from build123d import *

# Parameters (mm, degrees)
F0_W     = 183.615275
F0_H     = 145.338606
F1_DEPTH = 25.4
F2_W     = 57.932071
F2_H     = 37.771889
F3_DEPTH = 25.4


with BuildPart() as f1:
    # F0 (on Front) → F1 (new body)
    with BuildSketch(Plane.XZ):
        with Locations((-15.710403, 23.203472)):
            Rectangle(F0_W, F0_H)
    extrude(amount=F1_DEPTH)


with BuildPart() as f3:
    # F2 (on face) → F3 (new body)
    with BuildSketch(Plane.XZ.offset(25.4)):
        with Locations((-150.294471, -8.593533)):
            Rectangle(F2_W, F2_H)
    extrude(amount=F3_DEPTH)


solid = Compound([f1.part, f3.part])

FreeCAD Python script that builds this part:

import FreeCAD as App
import Part
import Sketcher

V = App.Vector


def add_polygon(sketch, points):
    """Adds a closed chain of lines whose ends are joined by coincident constraints."""
    first, n = sketch.GeometryCount, len(points)
    for a, b in zip(points, points[1:] + points[:1]):
        sketch.addGeometry(Part.LineSegment(App.Vector(*a, 0), App.Vector(*b, 0)), False)
    for i in range(n):
        sketch.addConstraint(Sketcher.Constraint("Coincident", first + i, 2, first + (i + 1) % n, 1))

doc = App.newDocument("Part")
params = doc.addObject("Spreadsheet::Sheet", "Params")
for row, (alias, value) in enumerate([
    ("pad1_length", "1 in"),
    ("pad2_length", "1 in"),
], start=1):
    params.set(f"A{row}", alias)
    params.set(f"B{row}", "=" + value)
    params.setAlias(f"B{row}", alias)

body = doc.addObject("PartDesign::Body", "Body")

# Sketch on XZ plane
sketch1 = doc.addObject("Sketcher::SketchObject", "Sketch")
body.addObject(sketch1)
sketch1.AttachmentSupport = (doc.XZ_Plane, [""])
sketch1.MapMode = "FlatFace"
add_polygon(sketch1, [(-107.51804, 95.872775), (-107.51804, -49.465831), (76.097234, -49.465831), (76.097234, 95.872775)])  # lines 0-3
sketch1.addConstraint([
    Sketcher.Constraint("Vertical", 0),
    Sketcher.Constraint("Horizontal", 1),
    Sketcher.Constraint("Vertical", 2),
    Sketcher.Constraint("Horizontal", 3),
    Sketcher.Constraint("DistanceX", 1, 1, 1, 2, 183.615275),
    Sketcher.Constraint("DistanceY", 0, 2, 0, 1, 145.338606),
    Sketcher.Constraint("DistanceX", 0, 2, -1, 1, 107.51804),
    Sketcher.Constraint("DistanceY", 0, 2, -1, 1, 49.465831),
])
pad1 = doc.addObject("PartDesign::Pad", "Pad")
body.addObject(pad1)
pad1.Profile = sketch1
pad1.setExpression("Length", "Params.pad1_length")
body2 = doc.addObject("PartDesign::Body", "Body001")

# Sketch on XZ plane
sketch2 = doc.addObject("Sketcher::SketchObject", "Sketch001")
body2.addObject(sketch2)
sketch2.AttachmentSupport = (doc.getObject("XZ_Plane001"), [""])
sketch2.MapMode = "FlatFace"
sketch2.AttachmentOffset = App.Placement(V(0, 0, 1 * 25.4), App.Rotation())
add_polygon(sketch2, [(-179.260506, 10.292412), (-179.260506, -27.479478), (-121.328435, -27.479478), (-121.328435, 10.292412)])  # lines 0-3
sketch2.addConstraint([
    Sketcher.Constraint("Vertical", 0),
    Sketcher.Constraint("Horizontal", 1),
    Sketcher.Constraint("Vertical", 2),
    Sketcher.Constraint("Horizontal", 3),
    Sketcher.Constraint("DistanceX", 1, 1, 1, 2, 57.932071),
    Sketcher.Constraint("DistanceY", 0, 2, 0, 1, 37.771889),
    Sketcher.Constraint("DistanceY", -1, 1, 2, 2, 10.292412),
    Sketcher.Constraint("DistanceX", 0, 2, -1, 1, 179.260506),
])
pad2 = doc.addObject("PartDesign::Pad", "Pad001")
body2.addObject(pad2)
pad2.Profile = sketch2
pad2.setExpression("Length", "Params.pad2_length")

doc.recompute()
